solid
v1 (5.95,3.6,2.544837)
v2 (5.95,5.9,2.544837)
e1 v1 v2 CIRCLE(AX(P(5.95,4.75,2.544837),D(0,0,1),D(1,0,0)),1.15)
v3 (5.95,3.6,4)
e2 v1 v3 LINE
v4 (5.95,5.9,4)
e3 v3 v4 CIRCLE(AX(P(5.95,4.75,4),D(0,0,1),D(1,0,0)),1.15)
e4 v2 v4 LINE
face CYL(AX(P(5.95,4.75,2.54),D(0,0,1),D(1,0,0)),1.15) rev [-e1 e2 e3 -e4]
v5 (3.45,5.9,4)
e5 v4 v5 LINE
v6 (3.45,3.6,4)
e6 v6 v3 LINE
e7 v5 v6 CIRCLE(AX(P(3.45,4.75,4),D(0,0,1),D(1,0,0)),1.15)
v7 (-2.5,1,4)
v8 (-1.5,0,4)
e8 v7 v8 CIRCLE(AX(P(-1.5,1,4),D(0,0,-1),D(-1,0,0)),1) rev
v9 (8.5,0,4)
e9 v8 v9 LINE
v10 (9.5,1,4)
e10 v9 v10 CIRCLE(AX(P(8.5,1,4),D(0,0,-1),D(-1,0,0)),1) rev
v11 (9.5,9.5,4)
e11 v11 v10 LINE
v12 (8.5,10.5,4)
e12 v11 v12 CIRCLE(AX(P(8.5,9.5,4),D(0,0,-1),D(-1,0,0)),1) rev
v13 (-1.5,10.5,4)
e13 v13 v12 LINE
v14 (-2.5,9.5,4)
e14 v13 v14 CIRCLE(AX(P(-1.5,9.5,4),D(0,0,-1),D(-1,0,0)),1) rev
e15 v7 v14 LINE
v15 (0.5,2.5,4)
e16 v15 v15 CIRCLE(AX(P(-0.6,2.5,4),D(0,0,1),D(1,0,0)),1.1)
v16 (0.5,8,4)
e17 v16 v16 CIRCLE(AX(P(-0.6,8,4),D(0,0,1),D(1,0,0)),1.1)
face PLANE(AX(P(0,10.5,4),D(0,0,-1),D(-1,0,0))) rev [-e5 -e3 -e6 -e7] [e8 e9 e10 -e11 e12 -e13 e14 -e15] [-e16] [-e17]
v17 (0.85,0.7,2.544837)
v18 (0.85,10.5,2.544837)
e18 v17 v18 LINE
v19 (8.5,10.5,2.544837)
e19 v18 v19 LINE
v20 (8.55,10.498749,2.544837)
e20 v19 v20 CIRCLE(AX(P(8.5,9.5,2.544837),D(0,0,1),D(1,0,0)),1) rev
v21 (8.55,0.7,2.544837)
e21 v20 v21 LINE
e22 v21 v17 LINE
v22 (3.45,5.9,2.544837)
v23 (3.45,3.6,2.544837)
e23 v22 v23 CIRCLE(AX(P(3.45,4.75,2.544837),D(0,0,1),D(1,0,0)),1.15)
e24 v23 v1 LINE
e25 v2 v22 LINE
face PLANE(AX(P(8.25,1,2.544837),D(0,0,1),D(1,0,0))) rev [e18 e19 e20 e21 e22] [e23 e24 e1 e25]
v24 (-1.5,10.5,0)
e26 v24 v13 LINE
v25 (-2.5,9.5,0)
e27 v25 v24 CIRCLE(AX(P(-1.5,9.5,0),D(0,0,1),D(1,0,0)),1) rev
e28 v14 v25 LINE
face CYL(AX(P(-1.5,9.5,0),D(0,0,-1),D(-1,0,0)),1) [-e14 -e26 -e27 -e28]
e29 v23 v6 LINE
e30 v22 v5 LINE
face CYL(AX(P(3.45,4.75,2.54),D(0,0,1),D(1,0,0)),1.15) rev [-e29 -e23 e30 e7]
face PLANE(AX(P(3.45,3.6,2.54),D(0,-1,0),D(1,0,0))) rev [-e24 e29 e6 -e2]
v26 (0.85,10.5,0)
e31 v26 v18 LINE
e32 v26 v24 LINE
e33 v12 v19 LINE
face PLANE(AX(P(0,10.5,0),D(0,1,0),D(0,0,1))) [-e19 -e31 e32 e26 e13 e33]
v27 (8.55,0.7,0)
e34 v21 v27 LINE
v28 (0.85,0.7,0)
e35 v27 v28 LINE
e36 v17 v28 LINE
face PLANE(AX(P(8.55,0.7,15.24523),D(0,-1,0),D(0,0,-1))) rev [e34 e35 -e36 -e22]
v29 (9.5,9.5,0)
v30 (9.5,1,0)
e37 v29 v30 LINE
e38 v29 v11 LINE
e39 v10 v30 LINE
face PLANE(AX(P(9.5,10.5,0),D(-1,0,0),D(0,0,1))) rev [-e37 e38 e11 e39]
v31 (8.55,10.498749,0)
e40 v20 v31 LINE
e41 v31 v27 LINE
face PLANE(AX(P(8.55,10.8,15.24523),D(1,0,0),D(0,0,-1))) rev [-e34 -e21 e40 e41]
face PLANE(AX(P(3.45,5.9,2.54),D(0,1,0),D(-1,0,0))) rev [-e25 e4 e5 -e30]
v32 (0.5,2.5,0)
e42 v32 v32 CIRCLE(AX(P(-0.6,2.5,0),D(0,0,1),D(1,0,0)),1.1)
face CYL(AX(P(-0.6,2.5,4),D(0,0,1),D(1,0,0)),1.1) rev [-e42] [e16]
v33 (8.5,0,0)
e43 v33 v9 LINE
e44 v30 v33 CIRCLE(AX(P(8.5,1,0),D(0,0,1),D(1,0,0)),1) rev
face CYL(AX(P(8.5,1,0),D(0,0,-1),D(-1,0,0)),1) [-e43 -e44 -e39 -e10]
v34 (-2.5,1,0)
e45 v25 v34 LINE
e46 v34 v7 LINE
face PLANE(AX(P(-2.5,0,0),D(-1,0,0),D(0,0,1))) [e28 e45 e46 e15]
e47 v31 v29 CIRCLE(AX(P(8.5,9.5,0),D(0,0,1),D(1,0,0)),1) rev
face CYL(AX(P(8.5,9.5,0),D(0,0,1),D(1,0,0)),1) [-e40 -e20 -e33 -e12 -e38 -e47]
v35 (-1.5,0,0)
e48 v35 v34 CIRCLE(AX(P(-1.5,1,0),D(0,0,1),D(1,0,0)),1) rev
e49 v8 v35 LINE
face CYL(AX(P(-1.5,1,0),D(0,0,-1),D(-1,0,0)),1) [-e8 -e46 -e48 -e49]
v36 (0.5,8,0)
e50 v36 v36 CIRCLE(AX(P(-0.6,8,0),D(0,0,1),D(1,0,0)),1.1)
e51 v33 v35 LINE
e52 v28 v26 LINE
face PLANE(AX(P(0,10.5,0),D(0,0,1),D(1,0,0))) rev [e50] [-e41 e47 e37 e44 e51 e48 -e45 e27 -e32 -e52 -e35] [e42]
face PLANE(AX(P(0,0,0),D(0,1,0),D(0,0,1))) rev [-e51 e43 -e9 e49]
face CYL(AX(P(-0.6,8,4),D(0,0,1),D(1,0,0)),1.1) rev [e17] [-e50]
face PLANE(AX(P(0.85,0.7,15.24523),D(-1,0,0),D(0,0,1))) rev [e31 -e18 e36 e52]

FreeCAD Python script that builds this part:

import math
import FreeCAD as App
import Part
import Sketcher
Q = App.Units.Quantity


def edges_at(feature, points):
    """Names of the edges that pass closest to the given points."""
    edges = feature.Shape.Edges
    near = lambda p: min(range(len(edges)), key=lambda i: edges[i].distToShape(Part.Vertex(*p))[0])
    return sorted({f"Edge{near(p) + 1}" for p in points})


def add_polygon(sketch, points):
    """Adds a closed chain of lines whose ends are joined by coincident constraints."""
    first, n = sketch.GeometryCount, len(points)
    for a, b in zip(points, points[1:] + points[:1]):
        sketch.addGeometry(Part.LineSegment(App.Vector(*a, 0), App.Vector(*b, 0)), False)
    for i in range(n):
        sketch.addConstraint(Sketcher.Constraint("Coincident", first + i, 2, first + (i + 1) % n, 1))

doc = App.newDocument("Part")
params = doc.addObject("Spreadsheet::Sheet", "Params")
for row, (alias, value) in enumerate([
    ("sketch1_height", "4 mm"),
    ("sketch1_width", "9.5 mm"),
    ("pad1_length", "10.5 mm"),
    ("sketch2_width", "7.1 mm"),
    ("pocket1_length", "9.5 mm"),
    ("sketch3_height", "4 mm"),
    ("sketch3_width", "10.5 mm"),
    ("pad2_length", "2.5 mm"),
    ("fillet_radius", "1 mm"),
    ("sketch4_diameter", "2.2 mm"),
    ("hole_diameter", "2.2 mm"),
    ("sketch5_width", "7.7 mm"),
    ("sketch5_width2", "7.1 mm"),
    ("sketch5_height", "10.1 mm"),
    ("sketch5_height2", "9.5 mm"),
    ("pocket2_length", "2.544837 mm"),
    ("sketch6_radius", "1.15 mm"),
    ("sketch6_width", "2.5 mm"),
    ("pocket3_length", "1.46 mm"),
], start=1):
    params.set(f"A{row}", alias)
    params.set(f"B{row}", "=" + value)
    params.setAlias(f"B{row}", alias)

body = doc.addObject("PartDesign::Body", "Body")

# Sketch on XZ plane
sketch1 = body.newObject("Sketcher::SketchObject", "Sketch")
sketch1.AttachmentSupport = (doc.getObject("XZ_Plane"), [""])
sketch1.MapMode = "FlatFace"
add_polygon(sketch1, [(0, 0), (0, 4), (9.5, 4), (9.5, 0)])  # lines 0-3
sketch1.addConstraint([
    Sketcher.Constraint("Vertical", 0),
    Sketcher.Constraint("Horizontal", 1),
    Sketcher.Constraint("Vertical", 2),
    Sketcher.Constraint("Horizontal", 3),
    Sketcher.Constraint("Coincident", 3, 2, -1, 1),
    Sketcher.Constraint("DistanceY", 0, 1, 0, 2, Q("4 mm")),
    Sketcher.Constraint("DistanceX", 1, 1, 1, 2, Q("9.5 mm")),
])
sketch1.setExpression("Constraints[9]", "Params.sketch1_height")
sketch1.setExpression("Constraints[10]", "Params.sketch1_width")
pad1 = body.newObject("PartDesign::Pad", "Pad")
pad1.Profile = sketch1
pad1.setExpression("Length", "Params.pad1_length")
pad1.Reversed = True

# Sketch on XZ plane
sketch2 = body.newObject("Sketcher::SketchObject", "Sketch001")
sketch2.AttachmentSupport = (doc.getObject("XZ_Plane"), [""])
sketch2.MapMode = "FlatFace"
sketch2.AttachmentOffset = App.Placement(App.Vector(0, 0, -10.5), App.Rotation())
add_polygon(sketch2, [(8.25, 2.544837), (8.25, 0), (1.15, 0), (1.15, 2.544837)])  # lines 0-3
sketch2.addConstraint([
    Sketcher.Constraint("Vertical", 0),
    Sketcher.Constraint("Horizontal", 1),
    Sketcher.Constraint("Vertical", 2),
    Sketcher.Constraint("Horizontal", 3),
    Sketcher.Constraint("PointOnObject", 0, 2, -1),
    Sketcher.Constraint("DistanceX", 1, 2, 1, 1, Q("7.1 mm")),
    Sketcher.Constraint("DistanceX", -1, 1, 0, 2, Q("8.25 mm")),
    Sketcher.Constraint("DistanceY", 0, 2, 0, 1, Q("2.544837 mm")),
])
sketch2.setExpression("Constraints[9]", "Params.sketch2_width")
pocket1 = body.newObject("PartDesign::Pocket", "Pocket")
pocket1.Profile = sketch2
pocket1.setExpression("Length", "Params.pocket1_length")
pocket1.Reversed = True

# Sketch on YZ plane
sketch3 = body.newObject("Sketcher::SketchObject", "Sketch002")
sketch3.AttachmentSupport = (doc.getObject("YZ_Plane"), [""])
sketch3.MapMode = "FlatFace"
add_polygon(sketch3, [(10.5, 0), (0, 0), (0, 4), (10.5, 4)])  # lines 0-3
sketch3.addConstraint([
    Sketcher.Constraint("Horizontal", 0),
    Sketcher.Constraint("Vertical", 1),
    Sketcher.Constraint("Horizontal", 2),
    Sketcher.Constraint("Vertical", 3),
    Sketcher.Constraint("Coincident", 0, 2, -1, 1),
    Sketcher.Constraint("DistanceY", 1, 1, 1, 2, Q("4 mm")),
    Sketcher.Constraint("DistanceX", 0, 2, 0, 1, Q("10.5 mm")),
])
sketch3.setExpression("Constraints[9]", "Params.sketch3_height")
sketch3.setExpression("Constraints[10]", "Params.sketch3_width")
pad2 = body.newObject("PartDesign::Pad", "Pad001")
pad2.Profile = sketch3
pad2.setExpression("Length", "Params.pad2_length")
pad2.Reversed = True
doc.recompute()

fillet = body.newObject("PartDesign::Fillet", "Fillet")
fillet.Base = (pad2, edges_at(pad2, [
    (9.5, 10.5, 2),
    (-2.5, 0, 2),
    (-2.5, 10.5, 2),
    (9.5, 0, 2),
]))
fillet.setExpression("Radius", "Params.fillet_radius")

# Sketch on XY plane
sketch4 = body.newObject("Sketcher::SketchObject", "Sketch003")
sketch4.AttachmentSupport = (doc.getObject("XY_Plane"), [""])
sketch4.MapMode = "FlatFace"
sketch4.AttachmentOffset = App.Placement(App.Vector(0, 0, 4), App.Rotation())
sketch4.addGeometry([
    Part.Circle(App.Vector(-0.6, 8, 0), App.Vector(0, 0, 1), 1.1),
    Part.Circle(App.Vector(-0.6, 2.5, 0), App.Vector(0, 0, 1), 1.1),
], False)
sketch4.addConstraint([
    Sketcher.Constraint("Equal", 0, 1),
    Sketcher.Constraint("Vertical", 0, 3, 1, 3),
    Sketcher.Constraint("Diameter", 0, Q("2.2 mm")),
    Sketcher.Constraint("DistanceY", -1, 1, 0, 3, Q("8 mm")),
    Sketcher.Constraint("DistanceX", 0, 3, -1, 1, Q("0.6 mm")),
    Sketcher.Constraint("DistanceY", -1, 1, 1, 3, Q("2.5 mm")),
])
sketch4.setExpression("Constraints[2]", "Params.sketch4_diameter")
doc.recompute()
hole = body.newObject("PartDesign::Hole", "Hole")
hole.Profile = sketch4
hole.ThreadType = "None"
hole.setExpression("Diameter", "Params.hole_diameter")
hole.DepthType = "ThroughAll"

# Sketch on XY plane
sketch5 = body.newObject("Sketcher::SketchObject", "Sketch004")
sketch5.AttachmentSupport = (doc.getObject("XY_Plane"), [""])
sketch5.MapMode = "FlatFace"
add_polygon(sketch5, [(8.55, 10.8), (8.55, 0.7), (0.85, 0.7), (0.85, 10.8)])  # lines 0-3
add_polygon(sketch5, [(1.15, 1), (8.25, 1), (8.25, 10.5), (1.15, 10.5)])  # lines 4-7
sketch5.addConstraint([
    Sketcher.Constraint("Vertical", 0),
    Sketcher.Constraint("Horizontal", 1),
    Sketcher.Constraint("Vertical", 2),
    Sketcher.Constraint("Horizontal", 3),
    Sketcher.Constraint("Horizontal", 4),
    Sketcher.Constraint("Vertical", 5),
    Sketcher.Constraint("Horizontal", 6),
    Sketcher.Constraint("Vertical", 7),
    Sketcher.Constraint("DistanceX", 1, 2, 1, 1, Q("7.7 mm")),
    Sketcher.Constraint("DistanceX", 4, 1, 4, 2, Q("7.1 mm")),
    Sketcher.Constraint("DistanceY", 0, 2, 0, 1, Q("10.1 mm")),
    Sketcher.Constraint("DistanceY", 5, 1, 5, 2, Q("9.5 mm")),
    Sketcher.Constraint("DistanceY", -1, 1, 4, 2, Q("1 mm")),
    Sketcher.Constraint("DistanceY", -1, 1, 0, 2, Q("0.7 mm")),
    Sketcher.Constraint("DistanceX", 4, 2, 0, 2, Q("0.3 mm")),
    Sketcher.Constraint("DistanceX", -1, 1, 0, 2, Q("8.55 mm")),
])
sketch5.setExpression("Constraints[16]", "Params.sketch5_width")
sketch5.setExpression("Constraints[17]", "Params.sketch5_width2")
sketch5.setExpression("Constraints[18]", "Params.sketch5_height")
sketch5.setExpression("Constraints[19]", "Params.sketch5_height2")
pocket2 = body.newObject("PartDesign::Pocket", "Pocket001")
pocket2.Profile = sketch5
pocket2.setExpression("Length", "Params.pocket2_length")
pocket2.Reversed = True

# Sketch on XY plane
sketch6 = body.newObject("Sketcher::SketchObject", "Sketch005")
sketch6.AttachmentSupport = (doc.getObject("XY_Plane"), [""])
sketch6.MapMode = "FlatFace"
sketch6.AttachmentOffset = App.Placement(App.Vector(0, 0, 4), App.Rotation())
sketch6.addGeometry([
    Part.LineSegment(App.Vector(5.95, 5.9, 0), App.Vector(3.45, 5.9, 0)),
    Part.ArcOfCircle(Part.Circle(App.Vector(3.45, 4.75, 0), App.Vector(0, 0, 1), 1.15), math.radians(90), math.radians(270)),
    Part.LineSegment(App.Vector(3.45, 3.6, 0), App.Vector(5.95, 3.6, 0)),
    Part.ArcOfCircle(Part.Circle(App.Vector(5.95, 4.75, 0), App.Vector(0, 0, 1), 1.15), math.radians(-90), math.radians(90)),
], False)
sketch6.addConstraint([
    Sketcher.Constraint("Tangent", 0, 2, 1, 1),
    Sketcher.Constraint("Tangent", 1, 2, 2, 1),
    Sketcher.Constraint("Tangent", 2, 2, 3, 1),
    Sketcher.Constraint("Tangent", 3, 2, 0, 1),
    Sketcher.Constraint("Horizontal", 0),
    Sketcher.Constraint("Horizontal", 2),
    Sketcher.Constraint("Radius", 1, Q("1.15 mm")),
    Sketcher.Constraint("DistanceX", 0, 2, 0, 1, Q("2.5 mm")),
    Sketcher.Constraint("DistanceY", -1, 1, 0, 2, Q("5.9 mm")),
    Sketcher.Constraint("DistanceX", -1, 1, 1, 3, Q("3.45 mm")),
])
sketch6.setExpression("Constraints[6]", "Params.sketch6_radius")
sketch6.setExpression("Constraints[7]", "Params.sketch6_width")
pocket3 = body.newObject("PartDesign::Pocket", "Pocket002")
pocket3.Profile = sketch6
pocket3.setExpression("Length", "Params.pocket3_length")

doc.recompute()
